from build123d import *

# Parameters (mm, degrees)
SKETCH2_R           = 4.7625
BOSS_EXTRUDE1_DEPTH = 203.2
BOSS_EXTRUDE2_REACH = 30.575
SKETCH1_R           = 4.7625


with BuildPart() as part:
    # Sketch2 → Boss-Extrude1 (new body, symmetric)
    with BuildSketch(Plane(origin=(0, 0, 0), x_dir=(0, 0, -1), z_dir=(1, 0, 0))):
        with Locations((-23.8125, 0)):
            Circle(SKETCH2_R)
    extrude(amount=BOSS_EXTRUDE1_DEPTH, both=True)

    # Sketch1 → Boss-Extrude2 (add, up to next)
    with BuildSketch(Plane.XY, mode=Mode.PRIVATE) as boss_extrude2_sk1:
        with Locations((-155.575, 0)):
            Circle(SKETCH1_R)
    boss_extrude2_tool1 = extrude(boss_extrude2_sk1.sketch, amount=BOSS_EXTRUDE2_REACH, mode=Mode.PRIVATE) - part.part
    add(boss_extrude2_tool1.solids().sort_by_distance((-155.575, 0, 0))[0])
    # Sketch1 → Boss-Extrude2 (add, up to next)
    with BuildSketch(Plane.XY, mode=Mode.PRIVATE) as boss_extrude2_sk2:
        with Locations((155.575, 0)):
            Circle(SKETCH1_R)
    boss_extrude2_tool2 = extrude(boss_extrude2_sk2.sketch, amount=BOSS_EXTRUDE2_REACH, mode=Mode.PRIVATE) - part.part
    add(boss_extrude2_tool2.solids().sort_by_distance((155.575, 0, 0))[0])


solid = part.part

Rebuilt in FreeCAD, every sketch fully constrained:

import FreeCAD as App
import Part
import Sketcher
from FreeCAD import Vector
Q = App.Units.Quantity

doc = App.newDocument("Part")
params = doc.addObject("Spreadsheet::Sheet", "Params")
for row, (alias, value) in enumerate([
    ("sketch1_diameter", "0.375 in"),
    ("pad1_length", "16 in"),
    ("sketch2_diameter", "0.375 in"),
    ("sketch3_diameter", "0.375 in"),
], start=1):
    params.set(f"A{row}", alias)
    params.set(f"B{row}", "=" + value)
    params.setAlias(f"B{row}", alias)

body = doc.addObject("PartDesign::Body", "Body")

# Sketch on YZ plane
sketch1 = body.newObject("Sketcher::SketchObject", "Sketch")
sketch1.AttachmentSupport = (doc.getObject("YZ_Plane"), [""])
sketch1.MapMode = "FlatFace"
sketch1.addGeometry(Part.Circle(Vector(0, 23.8, 0), Vector(0, 0, 1), 4.8), False)
sketch1.addConstraint([
    Sketcher.Constraint("PointOnObject", 0, 3, -2),
    Sketcher.Constraint("Diameter", 0, Q("0.375 in")),
    Sketcher.Constraint("DistanceY", -1, 1, 0, 3, Q("0.9375 in")),
])
sketch1.setExpression("Constraints[1]", "Params.sketch1_diameter")
pad1 = body.newObject("PartDesign::Pad", "Pad")
pad1.Profile = sketch1
pad1.setExpression("Length", "Params.pad1_length")
pad1.Midplane = True

# Sketch on XY plane
sketch2 = body.newObject("Sketcher::SketchObject", "Sketch001")
sketch2.AttachmentSupport = (doc.getObject("XY_Plane"), [""])
sketch2.MapMode = "FlatFace"
sketch2.addGeometry(Part.Circle(Vector(-155.6, 0, 0), Vector(0, 0, 1), 4.8), False)
sketch2.addConstraint([
    Sketcher.Constraint("PointOnObject", 0, 3, -1),
    Sketcher.Constraint("Diameter", 0, Q("0.375 in")),
    Sketcher.Constraint("DistanceX", 0, 3, -1, 1, Q("6.125 in")),
])
sketch2.setExpression("Constraints[1]", "Params.sketch2_diameter")
pad2 = body.newObject("PartDesign::Pad", "Pad001")
pad2.Profile = sketch2
pad2.Type = "UpToFirst"

# Sketch on XY plane
sketch3 = body.newObject("Sketcher::SketchObject", "Sketch002")
sketch3.AttachmentSupport = (doc.getObject("XY_Plane"), [""])
sketch3.MapMode = "FlatFace"
sketch3.addGeometry(Part.Circle(Vector(155.6, 0, 0), Vector(0, 0, 1), 4.8), False)
sketch3.addConstraint([
    Sketcher.Constraint("PointOnObject", 0, 3, -1),
    Sketcher.Constraint("Diameter", 0, Q("0.375 in")),
    Sketcher.Constraint("DistanceX", -1, 1, 0, 3, Q("6.125 in")),
])
sketch3.setExpression("Constraints[1]", "Params.sketch3_diameter")
pad3 = body.newObject("PartDesign::Pad", "Pad002")
pad3.Profile = sketch3
pad3.Type = "UpToFirst"

doc.recompute()
